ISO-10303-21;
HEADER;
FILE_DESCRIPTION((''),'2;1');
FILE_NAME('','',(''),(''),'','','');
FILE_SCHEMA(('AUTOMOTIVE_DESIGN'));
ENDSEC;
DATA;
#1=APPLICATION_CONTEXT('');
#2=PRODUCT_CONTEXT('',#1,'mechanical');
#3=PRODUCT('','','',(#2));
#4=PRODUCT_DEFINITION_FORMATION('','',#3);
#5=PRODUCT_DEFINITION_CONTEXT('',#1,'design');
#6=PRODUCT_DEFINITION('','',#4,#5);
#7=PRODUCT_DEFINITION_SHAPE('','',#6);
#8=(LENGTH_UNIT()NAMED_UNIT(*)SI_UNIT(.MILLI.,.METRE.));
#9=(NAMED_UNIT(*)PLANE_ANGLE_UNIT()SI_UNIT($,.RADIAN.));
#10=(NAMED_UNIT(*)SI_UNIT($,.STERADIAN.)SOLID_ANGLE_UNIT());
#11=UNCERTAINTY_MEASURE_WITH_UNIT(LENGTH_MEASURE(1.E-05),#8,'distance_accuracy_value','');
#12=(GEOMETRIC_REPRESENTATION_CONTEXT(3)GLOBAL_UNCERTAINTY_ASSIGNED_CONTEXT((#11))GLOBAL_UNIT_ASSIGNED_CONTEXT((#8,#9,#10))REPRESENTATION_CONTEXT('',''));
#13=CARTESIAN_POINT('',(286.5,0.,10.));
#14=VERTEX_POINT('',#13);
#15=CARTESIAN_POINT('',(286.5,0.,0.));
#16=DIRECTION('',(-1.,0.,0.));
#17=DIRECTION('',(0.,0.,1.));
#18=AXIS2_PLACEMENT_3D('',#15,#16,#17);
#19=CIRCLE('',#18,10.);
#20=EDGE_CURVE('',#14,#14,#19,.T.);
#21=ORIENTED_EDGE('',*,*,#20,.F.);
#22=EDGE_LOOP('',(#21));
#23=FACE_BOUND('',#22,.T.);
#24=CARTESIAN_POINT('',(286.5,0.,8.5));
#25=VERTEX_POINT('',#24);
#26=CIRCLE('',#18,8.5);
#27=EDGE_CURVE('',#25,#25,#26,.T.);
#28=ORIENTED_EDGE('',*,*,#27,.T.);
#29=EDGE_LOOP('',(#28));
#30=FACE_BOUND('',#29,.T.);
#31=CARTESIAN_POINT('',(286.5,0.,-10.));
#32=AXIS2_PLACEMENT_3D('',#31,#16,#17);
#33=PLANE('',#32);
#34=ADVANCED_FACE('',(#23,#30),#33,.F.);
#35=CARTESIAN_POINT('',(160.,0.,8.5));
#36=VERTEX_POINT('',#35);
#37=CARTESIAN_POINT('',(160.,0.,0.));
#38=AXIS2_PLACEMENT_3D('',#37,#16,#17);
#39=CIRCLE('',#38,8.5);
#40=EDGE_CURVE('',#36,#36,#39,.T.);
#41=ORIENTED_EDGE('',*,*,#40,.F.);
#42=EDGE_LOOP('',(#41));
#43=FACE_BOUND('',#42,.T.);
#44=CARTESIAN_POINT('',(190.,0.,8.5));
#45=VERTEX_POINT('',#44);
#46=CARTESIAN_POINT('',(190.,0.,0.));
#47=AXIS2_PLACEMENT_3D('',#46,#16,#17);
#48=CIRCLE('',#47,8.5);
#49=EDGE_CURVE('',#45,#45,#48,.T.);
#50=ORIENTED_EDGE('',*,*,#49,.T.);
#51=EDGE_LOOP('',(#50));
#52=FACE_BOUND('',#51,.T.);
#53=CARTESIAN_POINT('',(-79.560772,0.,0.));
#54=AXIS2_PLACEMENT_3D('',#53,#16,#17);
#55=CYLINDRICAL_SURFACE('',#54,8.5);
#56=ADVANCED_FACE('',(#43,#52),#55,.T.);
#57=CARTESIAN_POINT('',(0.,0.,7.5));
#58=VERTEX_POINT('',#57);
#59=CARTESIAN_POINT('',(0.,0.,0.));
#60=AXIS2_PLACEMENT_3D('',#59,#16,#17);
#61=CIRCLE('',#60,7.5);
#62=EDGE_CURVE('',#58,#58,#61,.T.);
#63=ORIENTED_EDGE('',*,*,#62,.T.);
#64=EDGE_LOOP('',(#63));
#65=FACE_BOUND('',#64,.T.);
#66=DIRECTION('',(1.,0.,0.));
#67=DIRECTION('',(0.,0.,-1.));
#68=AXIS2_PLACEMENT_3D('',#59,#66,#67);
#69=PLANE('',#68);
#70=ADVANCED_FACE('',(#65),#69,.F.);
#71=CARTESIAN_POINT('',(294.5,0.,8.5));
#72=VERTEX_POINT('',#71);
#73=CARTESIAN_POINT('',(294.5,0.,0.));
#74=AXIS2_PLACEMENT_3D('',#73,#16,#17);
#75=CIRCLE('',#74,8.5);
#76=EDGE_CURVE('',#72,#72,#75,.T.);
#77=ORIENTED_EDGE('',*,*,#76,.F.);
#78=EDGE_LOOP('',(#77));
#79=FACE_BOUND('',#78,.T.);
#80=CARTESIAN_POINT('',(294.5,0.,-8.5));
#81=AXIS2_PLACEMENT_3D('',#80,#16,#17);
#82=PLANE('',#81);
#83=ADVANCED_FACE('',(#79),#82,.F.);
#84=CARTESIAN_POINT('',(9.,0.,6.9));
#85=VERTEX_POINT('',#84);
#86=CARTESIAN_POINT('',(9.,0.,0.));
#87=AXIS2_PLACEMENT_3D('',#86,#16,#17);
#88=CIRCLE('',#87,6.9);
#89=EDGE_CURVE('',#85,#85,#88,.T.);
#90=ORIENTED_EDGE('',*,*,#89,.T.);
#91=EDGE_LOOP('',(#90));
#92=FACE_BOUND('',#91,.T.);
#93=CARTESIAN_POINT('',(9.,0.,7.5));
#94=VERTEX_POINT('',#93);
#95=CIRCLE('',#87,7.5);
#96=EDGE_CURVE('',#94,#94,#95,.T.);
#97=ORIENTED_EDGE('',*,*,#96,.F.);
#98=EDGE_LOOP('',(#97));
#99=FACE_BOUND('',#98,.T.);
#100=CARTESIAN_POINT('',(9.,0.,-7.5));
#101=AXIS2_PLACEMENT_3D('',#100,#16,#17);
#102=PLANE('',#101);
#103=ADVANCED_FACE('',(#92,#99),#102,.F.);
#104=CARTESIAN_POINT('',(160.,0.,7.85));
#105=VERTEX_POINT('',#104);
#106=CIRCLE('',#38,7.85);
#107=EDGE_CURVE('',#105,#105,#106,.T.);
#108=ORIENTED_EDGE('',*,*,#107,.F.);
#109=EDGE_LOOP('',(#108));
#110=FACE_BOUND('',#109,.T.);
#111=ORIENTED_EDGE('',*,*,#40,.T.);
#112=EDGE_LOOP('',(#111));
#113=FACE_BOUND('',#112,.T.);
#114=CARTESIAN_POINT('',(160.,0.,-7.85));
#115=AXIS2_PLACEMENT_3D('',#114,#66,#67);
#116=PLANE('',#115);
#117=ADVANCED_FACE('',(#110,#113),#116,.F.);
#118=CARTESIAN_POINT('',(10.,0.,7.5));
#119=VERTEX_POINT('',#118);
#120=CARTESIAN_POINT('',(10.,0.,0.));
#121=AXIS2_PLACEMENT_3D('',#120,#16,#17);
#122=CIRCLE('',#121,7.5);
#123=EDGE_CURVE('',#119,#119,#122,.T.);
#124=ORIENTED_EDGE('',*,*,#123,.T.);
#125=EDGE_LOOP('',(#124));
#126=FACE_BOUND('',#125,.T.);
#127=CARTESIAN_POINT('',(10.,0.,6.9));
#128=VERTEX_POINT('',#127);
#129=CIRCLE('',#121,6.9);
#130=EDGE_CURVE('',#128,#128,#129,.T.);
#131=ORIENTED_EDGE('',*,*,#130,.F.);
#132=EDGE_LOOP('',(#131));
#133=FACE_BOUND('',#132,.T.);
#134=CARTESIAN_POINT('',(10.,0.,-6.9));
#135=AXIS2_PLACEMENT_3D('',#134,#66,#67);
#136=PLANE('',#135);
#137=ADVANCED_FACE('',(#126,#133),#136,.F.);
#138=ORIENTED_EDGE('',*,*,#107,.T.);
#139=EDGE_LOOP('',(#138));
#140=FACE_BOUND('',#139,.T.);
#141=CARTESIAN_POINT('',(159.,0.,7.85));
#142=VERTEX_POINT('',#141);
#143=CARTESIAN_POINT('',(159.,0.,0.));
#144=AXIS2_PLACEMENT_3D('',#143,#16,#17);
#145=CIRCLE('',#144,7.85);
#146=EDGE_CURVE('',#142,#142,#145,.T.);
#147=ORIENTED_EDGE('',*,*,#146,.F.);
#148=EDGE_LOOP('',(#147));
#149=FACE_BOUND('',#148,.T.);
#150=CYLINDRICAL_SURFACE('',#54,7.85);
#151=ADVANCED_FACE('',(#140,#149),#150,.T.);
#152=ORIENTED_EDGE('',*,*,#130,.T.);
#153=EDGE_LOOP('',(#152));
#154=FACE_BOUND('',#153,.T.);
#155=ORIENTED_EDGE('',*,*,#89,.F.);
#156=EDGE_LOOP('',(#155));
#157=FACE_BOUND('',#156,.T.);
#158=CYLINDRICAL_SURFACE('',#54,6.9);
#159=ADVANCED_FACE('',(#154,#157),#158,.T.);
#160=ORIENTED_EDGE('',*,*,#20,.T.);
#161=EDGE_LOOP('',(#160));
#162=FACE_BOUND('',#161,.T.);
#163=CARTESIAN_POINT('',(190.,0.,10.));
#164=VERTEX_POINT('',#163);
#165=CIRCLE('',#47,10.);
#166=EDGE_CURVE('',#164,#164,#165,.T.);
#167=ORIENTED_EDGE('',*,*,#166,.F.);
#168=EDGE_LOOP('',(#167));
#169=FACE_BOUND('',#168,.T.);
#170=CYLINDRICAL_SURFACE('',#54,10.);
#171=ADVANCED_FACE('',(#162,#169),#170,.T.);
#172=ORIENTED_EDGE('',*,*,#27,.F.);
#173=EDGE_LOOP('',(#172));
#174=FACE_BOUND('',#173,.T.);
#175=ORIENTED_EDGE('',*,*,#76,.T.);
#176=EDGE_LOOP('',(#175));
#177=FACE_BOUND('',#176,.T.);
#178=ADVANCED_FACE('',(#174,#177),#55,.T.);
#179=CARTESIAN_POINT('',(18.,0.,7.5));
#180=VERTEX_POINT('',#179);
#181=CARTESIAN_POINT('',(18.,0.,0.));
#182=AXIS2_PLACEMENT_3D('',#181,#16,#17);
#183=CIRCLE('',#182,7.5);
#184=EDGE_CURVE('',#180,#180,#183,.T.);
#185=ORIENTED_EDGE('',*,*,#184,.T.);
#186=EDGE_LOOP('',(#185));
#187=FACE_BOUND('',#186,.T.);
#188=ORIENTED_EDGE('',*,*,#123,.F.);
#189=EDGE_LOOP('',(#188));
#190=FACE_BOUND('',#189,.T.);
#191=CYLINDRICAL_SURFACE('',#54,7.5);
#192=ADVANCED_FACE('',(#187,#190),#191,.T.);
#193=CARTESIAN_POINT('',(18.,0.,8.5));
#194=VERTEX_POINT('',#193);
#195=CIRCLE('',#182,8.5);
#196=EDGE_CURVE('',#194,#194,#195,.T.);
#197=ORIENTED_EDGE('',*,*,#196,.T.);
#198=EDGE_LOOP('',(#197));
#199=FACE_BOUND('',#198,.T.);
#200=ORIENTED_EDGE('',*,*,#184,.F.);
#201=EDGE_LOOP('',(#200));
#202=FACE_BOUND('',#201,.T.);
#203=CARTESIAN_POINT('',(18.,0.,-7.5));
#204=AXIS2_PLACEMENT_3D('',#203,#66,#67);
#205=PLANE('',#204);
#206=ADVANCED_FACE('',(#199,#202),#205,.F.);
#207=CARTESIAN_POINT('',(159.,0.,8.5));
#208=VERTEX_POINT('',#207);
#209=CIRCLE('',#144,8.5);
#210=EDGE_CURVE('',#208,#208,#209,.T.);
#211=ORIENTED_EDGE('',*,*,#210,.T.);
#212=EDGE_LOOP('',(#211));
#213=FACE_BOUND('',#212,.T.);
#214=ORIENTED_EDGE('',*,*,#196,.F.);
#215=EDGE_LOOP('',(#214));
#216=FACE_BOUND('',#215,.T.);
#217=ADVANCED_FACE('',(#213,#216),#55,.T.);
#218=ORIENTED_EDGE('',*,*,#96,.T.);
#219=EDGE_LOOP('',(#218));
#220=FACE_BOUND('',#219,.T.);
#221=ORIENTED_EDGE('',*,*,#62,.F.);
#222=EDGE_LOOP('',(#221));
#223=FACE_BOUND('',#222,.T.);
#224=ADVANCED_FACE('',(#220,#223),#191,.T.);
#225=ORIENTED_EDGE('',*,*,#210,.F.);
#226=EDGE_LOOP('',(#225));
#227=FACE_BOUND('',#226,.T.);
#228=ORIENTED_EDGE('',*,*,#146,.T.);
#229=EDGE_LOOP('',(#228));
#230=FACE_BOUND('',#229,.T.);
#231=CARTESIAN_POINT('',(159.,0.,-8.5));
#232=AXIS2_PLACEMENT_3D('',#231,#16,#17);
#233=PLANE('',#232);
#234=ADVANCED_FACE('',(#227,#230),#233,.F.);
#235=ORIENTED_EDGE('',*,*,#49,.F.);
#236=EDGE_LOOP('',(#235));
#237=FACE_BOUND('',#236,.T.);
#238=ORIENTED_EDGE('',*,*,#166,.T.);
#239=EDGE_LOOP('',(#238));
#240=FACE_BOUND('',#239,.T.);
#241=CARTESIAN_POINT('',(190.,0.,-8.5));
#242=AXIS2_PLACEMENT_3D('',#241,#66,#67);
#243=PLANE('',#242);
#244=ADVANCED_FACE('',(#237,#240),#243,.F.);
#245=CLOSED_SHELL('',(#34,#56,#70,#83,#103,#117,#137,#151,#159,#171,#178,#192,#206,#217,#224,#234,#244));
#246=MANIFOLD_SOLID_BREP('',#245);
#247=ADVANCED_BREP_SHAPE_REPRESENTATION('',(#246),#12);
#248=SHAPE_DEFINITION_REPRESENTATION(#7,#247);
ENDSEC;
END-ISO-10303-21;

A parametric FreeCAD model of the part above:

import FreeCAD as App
import Part
import Sketcher
Q = App.Units.Quantity


def add_polygon(sketch, points):
    """Adds a closed chain of lines whose ends are joined by coincident constraints."""
    first, n = sketch.GeometryCount, len(points)
    for a, b in zip(points, points[1:] + points[:1]):
        sketch.addGeometry(Part.LineSegment(App.Vector(*a, 0), App.Vector(*b, 0)), False)
    for i in range(n):
        sketch.addConstraint(Sketcher.Constraint("Coincident", first + i, 2, first + (i + 1) % n, 1))

doc = App.newDocument("Part")
body = doc.addObject("PartDesign::Body", "Body")

# Sketch on XZ plane
sketch1 = doc.addObject("Sketcher::SketchObject", "Sketch")
body.addObject(sketch1)
sketch1.AttachmentSupport = (doc.XZ_Plane, [""])
sketch1.MapMode = "FlatFace"
add_polygon(sketch1, [(0, -7.5), (0, 0), (294.5, 0), (294.5, -8.5), (286.5, -8.5), (286.5, -10), (190, -10), (190, -8.5), (160, -8.5), (160, -7.8), (159, -7.8), (159, -8.5), (18, -8.5), (18, -7.5), (10, -7.5), (10, -6.9), (9, -6.9), (9, -7.5)])  # lines 0-17
sketch1.addConstraint([
    Sketcher.Constraint("Vertical", 0),
    Sketcher.Constraint("Horizontal", 1),
    Sketcher.Constraint("Vertical", 2),
    Sketcher.Constraint("Horizontal", 3),
    Sketcher.Constraint("Vertical", 4),
    Sketcher.Constraint("Horizontal", 5),
    Sketcher.Constraint("Vertical", 6),
    Sketcher.Constraint("Horizontal", 7),
    Sketcher.Constraint("Vertical", 8),
    Sketcher.Constraint("Horizontal", 9),
    Sketcher.Constraint("Vertical", 10),
    Sketcher.Constraint("Horizontal", 11),
    Sketcher.Constraint("Vertical", 12),
    Sketcher.Constraint("Horizontal", 13),
    Sketcher.Constraint("Vertical", 14),
    Sketcher.Constraint("Horizontal", 15),
    Sketcher.Constraint("Vertical", 16),
    Sketcher.Constraint("Horizontal", 17),
    Sketcher.Constraint("Coincident", 0, 2, -1, 1),
    Sketcher.Constraint("Horizontal", 3, 2, 6, 2),
    Sketcher.Constraint("Horizontal", 7, 2, 10, 2),
    Sketcher.Constraint("Horizontal", 13, 2, 16, 2),
    Sketcher.Constraint("Equal", 3, 13),
    Sketcher.Constraint("Equal", 9, 15),
    Sketcher.Constraint("Equal", 15, 12),
    Sketcher.Constraint("DistanceX", 3, 2, 3, 1, Q("8 mm")),
    Sketcher.Constraint("DistanceX", 7, 2, 7, 1, Q("30 mm")),
    Sketcher.Constraint("DistanceX", 9, 2, 9, 1, Q("1 mm")),
    Sketcher.Constraint("DistanceX", 11, 2, 11, 1, Q("141 mm")),
    Sketcher.Constraint("DistanceX", 17, 2, 17, 1, Q("9 mm")),
    Sketcher.Constraint("DistanceX", 1, 1, 1, 2, Q("294.5 mm")),
    Sketcher.Constraint("DistanceY", 0, 1, 0, 2, Q("7.5 mm")),
    Sketcher.Constraint("DistanceY", 4, 2, 4, 1, Q("1.5 mm")),
    Sketcher.Constraint("DistanceY", 14, 1, 14, 2, Q("0.6 mm")),
    Sketcher.Constraint("DistanceY", 8, 1, 8, 2, Q("0.65 mm")),
])
revolution = doc.addObject("PartDesign::Revolution", "Revolution")
body.addObject(revolution)
revolution.Profile = sketch1
revolution.ReferenceAxis = (sketch1, ["H_Axis"])
revolution.Angle = 360

doc.recompute()
